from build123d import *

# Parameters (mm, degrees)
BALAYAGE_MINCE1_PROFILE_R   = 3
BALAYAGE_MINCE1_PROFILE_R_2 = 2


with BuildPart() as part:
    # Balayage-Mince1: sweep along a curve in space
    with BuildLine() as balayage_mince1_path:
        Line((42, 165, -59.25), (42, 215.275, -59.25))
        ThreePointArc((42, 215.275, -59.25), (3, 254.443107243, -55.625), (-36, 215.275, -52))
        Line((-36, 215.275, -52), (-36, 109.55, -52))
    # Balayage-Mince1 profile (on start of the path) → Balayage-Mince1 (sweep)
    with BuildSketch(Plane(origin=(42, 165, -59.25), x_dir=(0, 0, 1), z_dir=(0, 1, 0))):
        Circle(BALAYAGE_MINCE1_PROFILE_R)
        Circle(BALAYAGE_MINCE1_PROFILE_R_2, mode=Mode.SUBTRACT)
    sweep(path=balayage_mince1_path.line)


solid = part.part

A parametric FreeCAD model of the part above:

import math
import FreeCAD as App
import Part
import Sketcher
Q = App.Units.Quantity

doc = App.newDocument("Part")
body = doc.addObject("PartDesign::Body", "Body")

# Sketch on XZ plane
sketch1 = body.newObject("Sketcher::SketchObject", "Sketch")
sketch1.AttachmentSupport = (doc.getObject("XZ_Plane"), [""])
sketch1.MapMode = "FlatFace"
sketch1.AttachmentOffset = App.Placement(App.Vector(0, 0, -165), App.Rotation())
sketch1.addGeometry([
    Part.Circle(App.Vector(42, -59.2, 0), App.Vector(0, 0, 1), 3),
    Part.Circle(App.Vector(42, -59.2, 0), App.Vector(0, 0, 1), 2),
], False)
sketch1.addConstraint([
    Sketcher.Constraint("Coincident", 1, 3, 0, 3),
    Sketcher.Constraint("Diameter", 0, Q("6 mm")),
    Sketcher.Constraint("Diameter", 1, Q("4 mm")),
    Sketcher.Constraint("DistanceX", -1, 1, 0, 3, Q("42 mm")),
    Sketcher.Constraint("DistanceY", 0, 3, -1, 1, Q("59.25 mm")),
])

# Sketch on an angled plane
sketch2 = body.newObject("Sketcher::SketchObject", "Sketch001")
sketch2.Placement = App.Placement(App.Vector(-5.10029, 0, -54.872088), App.Rotation(App.Vector(-0.995708058, 0, 0.092549787), App.Vector(0, 1, 0), App.Vector(-0.092549787, 0, -0.995708058), "ZXY"))
sketch2.addGeometry([
    Part.LineSegment(App.Vector(-47, 165, 0), App.Vector(-47, 215, 0)),
    Part.ArcOfCircle(Part.Circle(App.Vector(-8, 215, 0), App.Vector(0, 0, 1), 39), math.radians(0), math.radians(180)),
    Part.LineSegment(App.Vector(31, 215, 0), App.Vector(31, 110, 0)),
], False)
sketch2.addConstraint([
    Sketcher.Constraint("Tangent", 0, 2, 1, 2),
    Sketcher.Constraint("Tangent", 1, 1, 2, 1),
    Sketcher.Constraint("Vertical", 0),
    Sketcher.Constraint("Vertical", 2),
    Sketcher.Constraint("DistanceY", -1, 1, 0, 1, Q("165 mm")),
    Sketcher.Constraint("DistanceY", 0, 1, 0, 2, Q("50.275 mm")),
    Sketcher.Constraint("DistanceY", 2, 2, 2, 1, Q("105.725 mm")),
    Sketcher.Constraint("Radius", 1, Q("39.168107 mm")),
    Sketcher.Constraint("DistanceX", -1, 1, 1, 1, Q("31.032901 mm")),
])
doc.recompute()

additivepipe = body.newObject("PartDesign::AdditivePipe", "AdditivePipe")
additivepipe.Profile = sketch1
additivepipe.Spine = (sketch2, ["Edge1", "Edge2", "Edge3"])

doc.recompute()
